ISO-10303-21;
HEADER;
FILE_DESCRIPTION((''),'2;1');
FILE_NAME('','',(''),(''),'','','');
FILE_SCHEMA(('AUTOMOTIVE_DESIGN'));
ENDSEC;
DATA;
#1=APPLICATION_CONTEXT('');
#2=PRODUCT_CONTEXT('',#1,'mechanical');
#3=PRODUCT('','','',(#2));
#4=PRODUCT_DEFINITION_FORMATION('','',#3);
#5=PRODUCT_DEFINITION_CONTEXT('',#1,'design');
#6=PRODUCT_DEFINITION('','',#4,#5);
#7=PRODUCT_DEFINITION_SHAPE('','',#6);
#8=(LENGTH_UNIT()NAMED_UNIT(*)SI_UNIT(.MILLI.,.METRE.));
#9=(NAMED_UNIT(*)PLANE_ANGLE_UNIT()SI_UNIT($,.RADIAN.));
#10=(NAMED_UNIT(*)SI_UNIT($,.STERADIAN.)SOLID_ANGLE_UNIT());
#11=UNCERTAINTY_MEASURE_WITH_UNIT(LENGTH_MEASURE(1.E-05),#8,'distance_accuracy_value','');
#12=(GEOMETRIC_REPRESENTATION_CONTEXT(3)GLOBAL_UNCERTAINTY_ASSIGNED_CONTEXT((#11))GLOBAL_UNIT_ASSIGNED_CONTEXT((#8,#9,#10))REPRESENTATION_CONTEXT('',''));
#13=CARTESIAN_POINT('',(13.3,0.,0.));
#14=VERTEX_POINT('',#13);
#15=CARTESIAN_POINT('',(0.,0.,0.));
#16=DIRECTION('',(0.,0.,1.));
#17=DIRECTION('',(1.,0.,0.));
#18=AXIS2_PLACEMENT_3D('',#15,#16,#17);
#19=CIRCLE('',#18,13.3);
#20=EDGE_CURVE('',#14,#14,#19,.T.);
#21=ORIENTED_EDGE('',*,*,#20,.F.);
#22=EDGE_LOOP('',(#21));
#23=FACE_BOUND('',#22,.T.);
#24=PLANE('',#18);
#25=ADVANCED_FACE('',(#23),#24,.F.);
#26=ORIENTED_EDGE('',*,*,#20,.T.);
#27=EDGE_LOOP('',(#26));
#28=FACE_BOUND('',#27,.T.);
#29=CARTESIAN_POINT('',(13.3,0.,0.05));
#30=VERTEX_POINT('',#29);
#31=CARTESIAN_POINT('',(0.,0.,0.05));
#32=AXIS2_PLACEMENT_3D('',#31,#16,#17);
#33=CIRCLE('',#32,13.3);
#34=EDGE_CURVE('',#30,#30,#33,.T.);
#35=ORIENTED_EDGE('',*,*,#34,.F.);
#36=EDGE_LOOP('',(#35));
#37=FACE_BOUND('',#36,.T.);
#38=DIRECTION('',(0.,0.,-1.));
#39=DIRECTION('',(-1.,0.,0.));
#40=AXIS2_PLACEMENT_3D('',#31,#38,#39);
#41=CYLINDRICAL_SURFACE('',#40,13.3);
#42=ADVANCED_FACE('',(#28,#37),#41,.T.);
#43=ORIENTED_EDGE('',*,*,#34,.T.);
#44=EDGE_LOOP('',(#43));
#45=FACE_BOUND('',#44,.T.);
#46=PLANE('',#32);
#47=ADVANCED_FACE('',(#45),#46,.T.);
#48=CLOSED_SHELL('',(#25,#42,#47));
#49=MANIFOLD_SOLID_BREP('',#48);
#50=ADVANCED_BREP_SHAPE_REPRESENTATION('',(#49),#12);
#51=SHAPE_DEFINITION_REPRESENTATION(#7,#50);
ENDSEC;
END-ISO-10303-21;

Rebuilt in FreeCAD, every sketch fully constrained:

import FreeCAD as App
import Part
import Sketcher

V = App.Vector

doc = App.newDocument("Part")
body = doc.addObject("PartDesign::Body", "Body")

# Sketch on XY plane
sketch1 = body.newObject("Sketcher::SketchObject", "Sketch")
sketch1.AttachmentSupport = (doc.getObject("XY_Plane"), [""])
sketch1.MapMode = "FlatFace"
sketch1.addGeometry(Part.Circle(V(0, 0, 0), V(0, 0, 1), 13), False)
sketch1.addConstraint([
    Sketcher.Constraint("Coincident", 0, 3, -1, 1),
    Sketcher.Constraint("Diameter", 0, 26.6),
])
pad1 = body.newObject("PartDesign::Pad", "Pad")
pad1.Profile = sketch1
pad1.Length = 0.05

doc.recompute()
